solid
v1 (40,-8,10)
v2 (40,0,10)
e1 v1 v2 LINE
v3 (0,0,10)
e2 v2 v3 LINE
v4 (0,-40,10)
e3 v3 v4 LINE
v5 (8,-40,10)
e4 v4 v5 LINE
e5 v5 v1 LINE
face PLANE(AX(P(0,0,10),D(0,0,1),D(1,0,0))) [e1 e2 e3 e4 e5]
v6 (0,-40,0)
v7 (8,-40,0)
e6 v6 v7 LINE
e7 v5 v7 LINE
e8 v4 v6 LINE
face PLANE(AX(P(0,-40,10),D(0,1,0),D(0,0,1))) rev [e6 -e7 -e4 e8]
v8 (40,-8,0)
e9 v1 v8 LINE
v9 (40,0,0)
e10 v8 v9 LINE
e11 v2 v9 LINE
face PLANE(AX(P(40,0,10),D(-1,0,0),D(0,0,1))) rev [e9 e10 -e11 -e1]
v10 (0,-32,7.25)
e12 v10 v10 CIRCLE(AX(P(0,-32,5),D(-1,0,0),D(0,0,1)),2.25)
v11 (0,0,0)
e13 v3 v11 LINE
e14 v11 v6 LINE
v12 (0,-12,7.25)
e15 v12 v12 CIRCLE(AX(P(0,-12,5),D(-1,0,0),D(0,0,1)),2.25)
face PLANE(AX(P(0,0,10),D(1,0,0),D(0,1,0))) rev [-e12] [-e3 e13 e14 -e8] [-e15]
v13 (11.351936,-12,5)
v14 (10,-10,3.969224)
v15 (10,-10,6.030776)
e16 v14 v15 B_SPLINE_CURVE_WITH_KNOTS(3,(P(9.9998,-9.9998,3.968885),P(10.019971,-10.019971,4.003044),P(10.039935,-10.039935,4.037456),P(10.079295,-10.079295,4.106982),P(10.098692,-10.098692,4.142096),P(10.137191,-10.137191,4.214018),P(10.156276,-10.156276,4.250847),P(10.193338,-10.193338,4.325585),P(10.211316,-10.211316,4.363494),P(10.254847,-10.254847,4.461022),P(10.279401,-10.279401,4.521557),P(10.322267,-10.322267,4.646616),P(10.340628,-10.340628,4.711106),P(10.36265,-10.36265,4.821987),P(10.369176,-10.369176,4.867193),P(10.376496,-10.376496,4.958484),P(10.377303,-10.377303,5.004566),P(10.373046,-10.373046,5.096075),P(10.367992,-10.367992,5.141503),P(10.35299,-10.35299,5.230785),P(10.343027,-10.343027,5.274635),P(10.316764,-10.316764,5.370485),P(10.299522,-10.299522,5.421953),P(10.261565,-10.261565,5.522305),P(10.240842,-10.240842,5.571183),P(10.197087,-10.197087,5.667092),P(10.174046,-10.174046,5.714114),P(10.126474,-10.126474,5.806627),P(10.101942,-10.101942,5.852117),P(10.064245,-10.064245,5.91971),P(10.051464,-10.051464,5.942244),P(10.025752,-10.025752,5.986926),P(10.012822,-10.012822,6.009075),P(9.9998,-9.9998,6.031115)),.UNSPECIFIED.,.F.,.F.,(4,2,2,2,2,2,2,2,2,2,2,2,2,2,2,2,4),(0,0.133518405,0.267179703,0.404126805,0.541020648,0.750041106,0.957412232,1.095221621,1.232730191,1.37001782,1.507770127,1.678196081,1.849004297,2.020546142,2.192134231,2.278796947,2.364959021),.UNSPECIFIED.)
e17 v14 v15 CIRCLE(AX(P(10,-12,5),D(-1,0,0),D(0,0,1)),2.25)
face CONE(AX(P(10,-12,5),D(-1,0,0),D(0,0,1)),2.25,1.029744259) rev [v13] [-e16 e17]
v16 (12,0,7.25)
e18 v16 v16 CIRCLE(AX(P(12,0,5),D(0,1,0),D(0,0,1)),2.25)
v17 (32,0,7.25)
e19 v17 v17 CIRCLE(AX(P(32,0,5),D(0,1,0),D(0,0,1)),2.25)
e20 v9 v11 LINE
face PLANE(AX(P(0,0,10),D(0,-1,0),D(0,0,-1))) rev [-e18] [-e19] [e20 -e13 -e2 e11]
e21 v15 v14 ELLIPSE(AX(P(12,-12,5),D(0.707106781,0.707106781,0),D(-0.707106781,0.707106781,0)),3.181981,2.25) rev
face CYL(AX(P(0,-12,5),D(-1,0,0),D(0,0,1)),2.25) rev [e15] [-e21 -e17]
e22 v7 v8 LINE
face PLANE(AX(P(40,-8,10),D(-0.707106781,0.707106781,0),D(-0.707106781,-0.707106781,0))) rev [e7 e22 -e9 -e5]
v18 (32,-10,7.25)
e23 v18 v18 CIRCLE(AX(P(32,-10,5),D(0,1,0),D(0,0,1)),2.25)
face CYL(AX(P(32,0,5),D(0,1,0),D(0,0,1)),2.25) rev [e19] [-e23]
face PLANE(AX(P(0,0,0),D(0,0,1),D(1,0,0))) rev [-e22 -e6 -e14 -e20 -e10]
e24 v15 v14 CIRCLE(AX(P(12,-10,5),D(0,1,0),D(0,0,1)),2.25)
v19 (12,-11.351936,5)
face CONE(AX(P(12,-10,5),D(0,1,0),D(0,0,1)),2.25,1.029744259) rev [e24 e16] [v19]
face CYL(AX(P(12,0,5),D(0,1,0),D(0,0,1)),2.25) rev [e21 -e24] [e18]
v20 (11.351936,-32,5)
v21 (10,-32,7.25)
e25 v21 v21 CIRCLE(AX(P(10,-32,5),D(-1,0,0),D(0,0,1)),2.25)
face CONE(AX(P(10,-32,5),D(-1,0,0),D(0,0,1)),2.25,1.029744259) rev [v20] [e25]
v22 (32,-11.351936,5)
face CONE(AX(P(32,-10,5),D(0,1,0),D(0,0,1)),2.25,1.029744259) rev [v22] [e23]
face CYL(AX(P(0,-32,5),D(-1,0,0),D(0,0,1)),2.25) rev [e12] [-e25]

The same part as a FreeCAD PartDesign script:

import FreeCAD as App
import Part
import Sketcher
Q = App.Units.Quantity

doc = App.newDocument("Part")
body = doc.addObject("PartDesign::Body", "Body")

sketch1 = doc.addObject("Sketcher::SketchObject", "Sketch")
body.addObject(sketch1)
sketch1.AttachmentSupport = (doc.XY_Plane, [""])
sketch1.MapMode = "FlatFace"
sketch1.addGeometry([
    Part.LineSegment(App.Vector(8, -40, 0), App.Vector(40, -8, 0)),
    Part.LineSegment(App.Vector(40, -8, 0), App.Vector(40, 0, 0)),
    Part.LineSegment(App.Vector(40, 0, 0), App.Vector(0, 0, 0)),
    Part.LineSegment(App.Vector(0, 0, 0), App.Vector(0, -40, 0)),
    Part.LineSegment(App.Vector(0, -40, 0), App.Vector(8, -40, 0)),
], False)
sketch1.addConstraint([
    Sketcher.Constraint("Coincident", 0, 2, 1, 1),
    Sketcher.Constraint("Coincident", 1, 2, 2, 1),
    Sketcher.Constraint("Coincident", 2, 2, 3, 1),
    Sketcher.Constraint("Coincident", 3, 2, 4, 1),
    Sketcher.Constraint("Coincident", 4, 2, 0, 1),
    Sketcher.Constraint("Vertical", 1),
    Sketcher.Constraint("Horizontal", 2),
    Sketcher.Constraint("Vertical", 3),
    Sketcher.Constraint("Horizontal", 4),
    Sketcher.Constraint("Coincident", 2, 2, -1, 1),
    Sketcher.Constraint("Equal", 4, 1),
    Sketcher.Constraint("Equal", 2, 3),
    Sketcher.Constraint("DistanceX", 2, 2, 2, 1, Q("40 mm")),
    Sketcher.Constraint("DistanceX", 4, 1, 4, 2, Q("8 mm")),
])
pad1 = doc.addObject("PartDesign::Pad", "Pad")
body.addObject(pad1)
pad1.Profile = sketch1
pad1.Length = 10

sketch2 = doc.addObject("Sketcher::SketchObject", "Sketch001")
body.addObject(sketch2)
sketch2.AttachmentSupport = (doc.XZ_Plane, [""])
sketch2.MapMode = "FlatFace"
sketch2.addGeometry([
    Part.Circle(App.Vector(12, 5, 0), App.Vector(0, 0, 1), 2.2),
    Part.Circle(App.Vector(32, 5, 0), App.Vector(0, 0, 1), 2.2),
], False)
sketch2.addConstraint([
    Sketcher.Constraint("Equal", 0, 1),
    Sketcher.Constraint("Horizontal", 0, 3, 1, 3),
    Sketcher.Constraint("Diameter", 0, Q("4.5 mm")),
    Sketcher.Constraint("DistanceX", -1, 1, 0, 3, Q("12 mm")),
    Sketcher.Constraint("DistanceY", -1, 1, 0, 3, Q("5 mm")),
    Sketcher.Constraint("DistanceX", -1, 1, 1, 3, Q("32 mm")),
])
doc.recompute()
hole = doc.addObject("PartDesign::Hole", "Hole")
body.addObject(hole)
hole.Profile = sketch2
hole.ThreadType = "None"
hole.Diameter = 4.5
hole.DepthType = "Dimension"
hole.Depth = 10
hole.DrillPoint = "Angled"
hole.DrillPointAngle = 118
hole.Reversed = True

sketch3 = doc.addObject("Sketcher::SketchObject", "Sketch002")
body.addObject(sketch3)
sketch3.AttachmentSupport = (doc.YZ_Plane, [""])
sketch3.MapMode = "FlatFace"
sketch3.addGeometry([
    Part.Circle(App.Vector(-12, 5, 0), App.Vector(0, 0, 1), 2.2),
    Part.Circle(App.Vector(-32, 5, 0), App.Vector(0, 0, 1), 2.2),
], False)
sketch3.addConstraint([
    Sketcher.Constraint("Equal", 0, 1),
    Sketcher.Constraint("Horizontal", 0, 3, 1, 3),
    Sketcher.Constraint("Diameter", 0, Q("4.5 mm")),
    Sketcher.Constraint("DistanceX", 0, 3, -1, 1, Q("12 mm")),
    Sketcher.Constraint("DistanceY", -1, 1, 0, 3, Q("5 mm")),
    Sketcher.Constraint("DistanceX", 1, 3, -1, 1, Q("32 mm")),
])
doc.recompute()
hole2 = doc.addObject("PartDesign::Hole", "Hole001")
body.addObject(hole2)
hole2.Profile = sketch3
hole2.ThreadType = "None"
hole2.Diameter = 4.5
hole2.DepthType = "Dimension"
hole2.Depth = 10
hole2.DrillPoint = "Angled"
hole2.DrillPointAngle = 118
hole2.Reversed = True

doc.recompute()
